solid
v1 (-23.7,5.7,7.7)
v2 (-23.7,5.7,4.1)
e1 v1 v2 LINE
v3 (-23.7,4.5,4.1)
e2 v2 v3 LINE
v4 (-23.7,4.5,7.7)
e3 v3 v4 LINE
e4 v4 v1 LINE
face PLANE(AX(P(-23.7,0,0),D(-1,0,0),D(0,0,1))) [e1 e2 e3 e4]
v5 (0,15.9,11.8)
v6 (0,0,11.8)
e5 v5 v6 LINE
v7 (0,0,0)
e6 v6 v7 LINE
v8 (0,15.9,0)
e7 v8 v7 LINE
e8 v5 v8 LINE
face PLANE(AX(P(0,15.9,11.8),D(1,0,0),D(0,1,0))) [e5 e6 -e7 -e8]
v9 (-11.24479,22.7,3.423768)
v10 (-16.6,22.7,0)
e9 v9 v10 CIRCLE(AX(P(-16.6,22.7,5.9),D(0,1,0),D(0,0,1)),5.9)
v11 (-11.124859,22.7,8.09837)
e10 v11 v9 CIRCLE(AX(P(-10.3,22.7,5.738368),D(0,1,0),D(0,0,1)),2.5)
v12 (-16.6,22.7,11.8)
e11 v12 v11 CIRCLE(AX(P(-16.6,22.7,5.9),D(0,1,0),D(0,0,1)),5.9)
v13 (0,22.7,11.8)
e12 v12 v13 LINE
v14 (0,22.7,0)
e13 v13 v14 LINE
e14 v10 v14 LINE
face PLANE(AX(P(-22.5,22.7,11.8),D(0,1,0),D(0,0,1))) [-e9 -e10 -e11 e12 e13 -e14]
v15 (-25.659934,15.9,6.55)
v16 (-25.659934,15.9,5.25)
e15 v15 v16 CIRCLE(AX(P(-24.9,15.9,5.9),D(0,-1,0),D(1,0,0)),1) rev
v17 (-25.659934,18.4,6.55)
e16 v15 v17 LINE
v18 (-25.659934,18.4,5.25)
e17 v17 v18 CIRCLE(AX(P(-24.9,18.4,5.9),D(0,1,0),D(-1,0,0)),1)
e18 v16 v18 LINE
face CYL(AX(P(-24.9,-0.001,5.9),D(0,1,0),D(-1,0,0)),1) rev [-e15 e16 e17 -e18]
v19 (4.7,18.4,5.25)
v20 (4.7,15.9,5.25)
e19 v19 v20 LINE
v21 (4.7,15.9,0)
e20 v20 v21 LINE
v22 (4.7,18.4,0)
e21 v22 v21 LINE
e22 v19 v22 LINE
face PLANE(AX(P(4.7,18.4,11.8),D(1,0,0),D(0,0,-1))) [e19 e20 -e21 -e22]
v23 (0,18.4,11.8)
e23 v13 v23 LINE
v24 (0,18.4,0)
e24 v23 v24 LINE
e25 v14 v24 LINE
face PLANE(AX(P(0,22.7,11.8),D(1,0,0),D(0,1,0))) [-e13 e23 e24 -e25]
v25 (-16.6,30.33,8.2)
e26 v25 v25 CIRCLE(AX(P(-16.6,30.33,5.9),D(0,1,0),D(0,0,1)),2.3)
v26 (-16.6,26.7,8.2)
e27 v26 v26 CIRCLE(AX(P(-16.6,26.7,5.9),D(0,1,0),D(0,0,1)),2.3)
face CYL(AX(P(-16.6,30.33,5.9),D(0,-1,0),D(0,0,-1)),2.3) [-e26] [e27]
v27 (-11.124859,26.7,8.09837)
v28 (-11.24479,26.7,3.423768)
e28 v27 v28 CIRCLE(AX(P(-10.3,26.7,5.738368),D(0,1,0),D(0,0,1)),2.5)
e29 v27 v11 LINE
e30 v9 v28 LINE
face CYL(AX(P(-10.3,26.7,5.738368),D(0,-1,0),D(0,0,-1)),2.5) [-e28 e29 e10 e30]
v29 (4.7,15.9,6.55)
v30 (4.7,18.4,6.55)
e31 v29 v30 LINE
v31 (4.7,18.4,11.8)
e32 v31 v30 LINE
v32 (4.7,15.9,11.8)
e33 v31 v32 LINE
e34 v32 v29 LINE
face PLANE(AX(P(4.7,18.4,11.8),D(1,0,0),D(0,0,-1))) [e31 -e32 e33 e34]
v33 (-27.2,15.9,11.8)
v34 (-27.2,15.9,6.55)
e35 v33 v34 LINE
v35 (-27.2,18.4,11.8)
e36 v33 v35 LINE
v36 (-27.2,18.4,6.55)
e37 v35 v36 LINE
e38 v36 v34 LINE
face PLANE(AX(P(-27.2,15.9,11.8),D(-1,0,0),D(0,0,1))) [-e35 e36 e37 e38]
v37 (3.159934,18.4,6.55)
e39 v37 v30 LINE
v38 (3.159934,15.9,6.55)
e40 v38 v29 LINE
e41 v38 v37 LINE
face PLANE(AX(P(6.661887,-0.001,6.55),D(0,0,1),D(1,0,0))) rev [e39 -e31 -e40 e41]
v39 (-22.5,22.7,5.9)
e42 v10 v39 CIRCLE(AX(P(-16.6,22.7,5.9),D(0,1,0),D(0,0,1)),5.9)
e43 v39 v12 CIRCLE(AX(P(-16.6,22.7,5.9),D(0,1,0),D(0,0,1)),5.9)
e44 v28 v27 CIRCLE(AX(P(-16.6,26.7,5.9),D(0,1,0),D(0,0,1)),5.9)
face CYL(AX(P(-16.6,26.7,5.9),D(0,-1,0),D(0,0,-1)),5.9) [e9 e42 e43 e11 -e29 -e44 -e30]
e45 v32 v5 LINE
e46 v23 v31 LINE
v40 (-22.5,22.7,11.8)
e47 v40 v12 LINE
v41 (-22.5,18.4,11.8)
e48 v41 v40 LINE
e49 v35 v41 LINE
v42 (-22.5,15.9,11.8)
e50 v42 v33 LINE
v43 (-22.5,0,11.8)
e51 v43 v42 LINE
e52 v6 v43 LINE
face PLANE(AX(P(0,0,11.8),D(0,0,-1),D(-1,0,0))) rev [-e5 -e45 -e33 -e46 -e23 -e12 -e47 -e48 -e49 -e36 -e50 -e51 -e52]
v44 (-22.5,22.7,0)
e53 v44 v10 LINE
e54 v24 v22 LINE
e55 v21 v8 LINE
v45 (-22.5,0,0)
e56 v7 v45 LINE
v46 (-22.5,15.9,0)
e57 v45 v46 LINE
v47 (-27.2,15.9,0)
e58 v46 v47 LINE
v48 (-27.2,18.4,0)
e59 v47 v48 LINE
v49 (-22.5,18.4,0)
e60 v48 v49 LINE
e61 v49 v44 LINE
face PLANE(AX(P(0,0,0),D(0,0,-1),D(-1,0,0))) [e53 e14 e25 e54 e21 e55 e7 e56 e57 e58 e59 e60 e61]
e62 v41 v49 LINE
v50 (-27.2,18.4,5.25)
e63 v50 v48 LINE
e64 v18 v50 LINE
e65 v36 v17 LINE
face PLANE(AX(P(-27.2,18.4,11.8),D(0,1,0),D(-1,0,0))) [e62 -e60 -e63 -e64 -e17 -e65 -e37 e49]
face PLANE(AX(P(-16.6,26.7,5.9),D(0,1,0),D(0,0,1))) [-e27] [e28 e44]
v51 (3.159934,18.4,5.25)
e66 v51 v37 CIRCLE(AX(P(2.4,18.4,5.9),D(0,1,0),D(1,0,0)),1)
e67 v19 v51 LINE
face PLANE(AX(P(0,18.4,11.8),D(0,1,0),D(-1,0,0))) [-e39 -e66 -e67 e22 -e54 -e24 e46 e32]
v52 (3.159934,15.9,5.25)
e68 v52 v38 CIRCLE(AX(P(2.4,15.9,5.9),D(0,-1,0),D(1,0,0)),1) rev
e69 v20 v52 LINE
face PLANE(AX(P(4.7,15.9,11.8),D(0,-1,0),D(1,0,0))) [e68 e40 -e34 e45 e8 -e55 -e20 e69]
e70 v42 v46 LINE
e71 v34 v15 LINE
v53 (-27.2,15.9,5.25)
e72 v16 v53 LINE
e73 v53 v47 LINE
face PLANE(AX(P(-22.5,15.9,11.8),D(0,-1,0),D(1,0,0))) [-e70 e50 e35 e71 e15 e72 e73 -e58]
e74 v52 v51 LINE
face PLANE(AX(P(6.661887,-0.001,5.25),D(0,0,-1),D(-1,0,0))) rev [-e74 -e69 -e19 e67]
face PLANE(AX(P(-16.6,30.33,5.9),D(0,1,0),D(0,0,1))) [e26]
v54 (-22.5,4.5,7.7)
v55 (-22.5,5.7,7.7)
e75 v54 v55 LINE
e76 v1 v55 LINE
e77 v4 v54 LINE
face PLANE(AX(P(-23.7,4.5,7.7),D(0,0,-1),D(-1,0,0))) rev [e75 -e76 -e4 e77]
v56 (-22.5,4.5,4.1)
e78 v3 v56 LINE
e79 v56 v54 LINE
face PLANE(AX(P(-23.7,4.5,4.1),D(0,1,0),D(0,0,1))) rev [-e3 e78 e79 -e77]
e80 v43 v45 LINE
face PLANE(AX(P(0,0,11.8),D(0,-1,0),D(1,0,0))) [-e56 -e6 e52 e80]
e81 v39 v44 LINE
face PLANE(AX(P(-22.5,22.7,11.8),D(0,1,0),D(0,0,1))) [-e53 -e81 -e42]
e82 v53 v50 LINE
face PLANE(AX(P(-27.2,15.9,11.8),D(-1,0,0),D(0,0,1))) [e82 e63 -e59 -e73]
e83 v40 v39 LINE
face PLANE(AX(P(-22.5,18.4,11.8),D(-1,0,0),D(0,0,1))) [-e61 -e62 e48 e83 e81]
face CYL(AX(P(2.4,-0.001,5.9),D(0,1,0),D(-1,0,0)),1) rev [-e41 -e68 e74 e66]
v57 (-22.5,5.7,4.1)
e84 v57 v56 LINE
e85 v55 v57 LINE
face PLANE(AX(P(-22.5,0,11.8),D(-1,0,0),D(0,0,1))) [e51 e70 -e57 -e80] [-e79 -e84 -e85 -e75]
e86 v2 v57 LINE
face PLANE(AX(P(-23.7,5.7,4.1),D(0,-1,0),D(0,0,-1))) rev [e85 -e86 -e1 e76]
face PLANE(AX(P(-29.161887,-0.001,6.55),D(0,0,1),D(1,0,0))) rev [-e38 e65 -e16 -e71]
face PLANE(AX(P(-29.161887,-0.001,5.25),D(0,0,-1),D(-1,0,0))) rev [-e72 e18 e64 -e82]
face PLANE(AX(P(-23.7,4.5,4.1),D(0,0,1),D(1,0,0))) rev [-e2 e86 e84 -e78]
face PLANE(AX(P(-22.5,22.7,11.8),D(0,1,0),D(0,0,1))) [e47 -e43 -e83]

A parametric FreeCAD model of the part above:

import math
import FreeCAD as App
import Part
import Sketcher

V = App.Vector

doc = App.newDocument("Part")
body = doc.addObject("PartDesign::Body", "Body")

sketch1 = doc.addObject("Sketcher::SketchObject", "Sketch")
body.addObject(sketch1)
sketch1.AttachmentSupport = (doc.XY_Plane, [""])
sketch1.MapMode = "FlatFace"
sketch1.addGeometry([
    Part.LineSegment(V(-22.5, 0, 0), V(0, 0, 0)),
    Part.LineSegment(V(0, 0, 0), V(0, 15.9, 0)),
    Part.LineSegment(V(0, 15.9, 0), V(4.7, 15.9, 0)),
    Part.LineSegment(V(4.7, 15.9, 0), V(4.7, 18.4, 0)),
    Part.LineSegment(V(4.7, 18.4, 0), V(0, 18.4, 0)),
    Part.LineSegment(V(0, 18.4, 0), V(0, 22.7, 0)),
    Part.LineSegment(V(0, 22.7, 0), V(-22.5, 22.7, 0)),
    Part.LineSegment(V(-22.5, 22.7, 0), V(-22.5, 18.4, 0)),
    Part.LineSegment(V(-22.5, 18.4, 0), V(-27.2, 18.4, 0)),
    Part.LineSegment(V(-27.2, 18.4, 0), V(-27.2, 15.9, 0)),
    Part.LineSegment(V(-27.2, 15.9, 0), V(-22.5, 15.9, 0)),
    Part.LineSegment(V(-22.5, 15.9, 0), V(-22.5, 0, 0)),
], False)
sketch1.addConstraint([
    Sketcher.Constraint("Coincident", 0, 2, 1, 1),
    Sketcher.Constraint("Coincident", 1, 2, 2, 1),
    Sketcher.Constraint("Coincident", 2, 2, 3, 1),
    Sketcher.Constraint("Coincident", 3, 2, 4, 1),
    Sketcher.Constraint("Coincident", 4, 2, 5, 1),
    Sketcher.Constraint("Coincident", 5, 2, 6, 1),
    Sketcher.Constraint("Coincident", 6, 2, 7, 1),
    Sketcher.Constraint("Coincident", 7, 2, 8, 1),
    Sketcher.Constraint("Coincident", 8, 2, 9, 1),
    Sketcher.Constraint("Coincident", 9, 2, 10, 1),
    Sketcher.Constraint("Coincident", 10, 2, 11, 1),
    Sketcher.Constraint("Coincident", 11, 2, 0, 1),
    Sketcher.Constraint("Horizontal", 0),
    Sketcher.Constraint("Vertical", 1),
    Sketcher.Constraint("Horizontal", 2),
    Sketcher.Constraint("Vertical", 3),
    Sketcher.Constraint("Horizontal", 4),
    Sketcher.Constraint("Vertical", 5),
    Sketcher.Constraint("Horizontal", 6),
    Sketcher.Constraint("Vertical", 7),
    Sketcher.Constraint("Horizontal", 8),
    Sketcher.Constraint("Vertical", 9),
    Sketcher.Constraint("Horizontal", 10),
    Sketcher.Constraint("Vertical", 11),
    Sketcher.Constraint("Coincident", 0, 2, -1, 1),
    Sketcher.Constraint("PointOnObject", 4, 2, -2),
    Sketcher.Constraint("Horizontal", 4, 2, 7, 2),
    Sketcher.Constraint("Horizontal", 2, 2, 9, 2),
    Sketcher.Constraint("Vertical", 7, 2, 10, 2),
    Sketcher.Constraint("Equal", 4, 8),
    Sketcher.Constraint("DistanceX", 0, 1, 0, 2, 22.5),
    Sketcher.Constraint("DistanceX", 2, 1, 2, 2, 4.7),
    Sketcher.Constraint("DistanceY", 1, 1, 1, 2, 15.9),
    Sketcher.Constraint("DistanceY", 3, 1, 3, 2, 2.5),
    Sketcher.Constraint("DistanceY", 5, 1, 5, 2, 4.3),
])
pad1 = doc.addObject("PartDesign::Pad", "Pad")
body.addObject(pad1)
pad1.Profile = sketch1
pad1.Length = 11.8

sketch2 = doc.addObject("Sketcher::SketchObject", "Sketch001")
body.addObject(sketch2)
sketch2.AttachmentSupport = (doc.XZ_Plane, [""])
sketch2.MapMode = "FlatFace"
sketch2.AttachmentOffset = App.Placement(V(0, 0, -22.7), App.Rotation())
sketch2.addGeometry(Part.Circle(V(-16.6, 5.9, 0), V(0, 0, 1), 5.9), False)
sketch2.addConstraint([
    Sketcher.Constraint("Diameter", 0, 11.8),
    Sketcher.Constraint("DistanceX", 0, 3, -1, 1, 16.6),
    Sketcher.Constraint("DistanceY", -1, 1, 0, 3, 5.9),
])
pad2 = doc.addObject("PartDesign::Pad", "Pad001")
body.addObject(pad2)
pad2.Profile = sketch2
pad2.Length = 4
pad2.Reversed = True

sketch3 = doc.addObject("Sketcher::SketchObject", "Sketch002")
body.addObject(sketch3)
sketch3.AttachmentSupport = (doc.XZ_Plane, [""])
sketch3.MapMode = "FlatFace"
sketch3.AttachmentOffset = App.Placement(V(0, 0, -22.7), App.Rotation())
sketch3.addGeometry(Part.Circle(V(-10.3, 5.738368, 0), V(0, 0, 1), 2.5), False)
sketch3.addConstraint([
    Sketcher.Constraint("Diameter", 0, 5.0),
    Sketcher.Constraint("DistanceX", 0, 3, -1, 1, 10.3),
    Sketcher.Constraint("DistanceY", -1, 1, 0, 3, 5.738368),
])
pad3 = doc.addObject("PartDesign::Pad", "Pad002")
body.addObject(pad3)
pad3.Profile = sketch3
pad3.Length = 4
pad3.Reversed = True

sketch4 = doc.addObject("Sketcher::SketchObject", "Sketch003")
body.addObject(sketch4)
sketch4.AttachmentSupport = (doc.XZ_Plane, [""])
sketch4.MapMode = "FlatFace"
sketch4.AttachmentOffset = App.Placement(V(0, 0, -26.7), App.Rotation())
sketch4.addGeometry(Part.Circle(V(-16.6, 5.9, 0), V(0, 0, 1), 2.3), False)
sketch4.addConstraint([
    Sketcher.Constraint("Diameter", 0, 4.6),
    Sketcher.Constraint("DistanceX", 0, 3, -1, 1, 16.6),
    Sketcher.Constraint("DistanceY", -1, 1, 0, 3, 5.9),
])
pad4 = doc.addObject("PartDesign::Pad", "Pad003")
body.addObject(pad4)
pad4.Profile = sketch4
pad4.Length = 3.63
pad4.Reversed = True

sketch5 = doc.addObject("Sketcher::SketchObject", "Sketch004")
body.addObject(sketch5)
sketch5.AttachmentSupport = (doc.XZ_Plane, [""])
sketch5.MapMode = "FlatFace"
sketch5.AttachmentOffset = App.Placement(V(0, 0, -18.4), App.Rotation())
sketch5.addGeometry([
    Part.LineSegment(V(6.661887, 5.25, 0), V(3.159934, 5.25, 0)),
    Part.ArcOfCircle(Part.Circle(V(2.4, 5.9, 0), V(0, 0, 1), 1), math.radians(40.541602), math.radians(319.458398)),
    Part.LineSegment(V(3.159934, 6.55, 0), V(6.661887, 6.55, 0)),
    Part.LineSegment(V(6.661887, 6.55, 0), V(6.661887, 5.25, 0)),
], False)
sketch5.addConstraint([
    Sketcher.Constraint("Coincident", 0, 2, 1, 2),
    Sketcher.Constraint("Coincident", 1, 1, 2, 1),
    Sketcher.Constraint("Coincident", 2, 2, 3, 1),
    Sketcher.Constraint("Coincident", 3, 2, 0, 1),
    Sketcher.Constraint("Horizontal", 0),
    Sketcher.Constraint("Horizontal", 2),
    Sketcher.Constraint("Vertical", 3),
    Sketcher.Constraint("Vertical", 0, 2, 1, 1),
    Sketcher.Constraint("Radius", 1, 1.0),
    Sketcher.Constraint("DistanceY", 3, 2, 3, 1, 1.3),
    Sketcher.Constraint("DistanceX", -1, 1, 1, 3, 2.4),
    Sketcher.Constraint("DistanceY", -1, 1, 1, 3, 5.9),
    Sketcher.Constraint("DistanceX", 0, 2, 0, 1, 3.501953),
])
pocket1 = doc.addObject("PartDesign::Pocket", "Pocket")
body.addObject(pocket1)
pocket1.Profile = sketch5
pocket1.Type = "UpToFirst"
pocket1.Reversed = True

sketch6 = doc.addObject("Sketcher::SketchObject", "Sketch005")
body.addObject(sketch6)
sketch6.AttachmentSupport = (doc.XZ_Plane, [""])
sketch6.MapMode = "FlatFace"
sketch6.AttachmentOffset = App.Placement(V(0, 0, -18.4), App.Rotation())
sketch6.addGeometry([
    Part.LineSegment(V(-25.659934, 5.25, 0), V(-29.161887, 5.25, 0)),
    Part.LineSegment(V(-29.161887, 5.25, 0), V(-29.161887, 6.55, 0)),
    Part.LineSegment(V(-29.161887, 6.55, 0), V(-25.659934, 6.55, 0)),
    Part.ArcOfCircle(Part.Circle(V(-24.9, 5.9, 0), V(0, 0, 1), 1), math.radians(-139.458398), math.radians(139.458398)),
], False)
sketch6.addConstraint([
    Sketcher.Constraint("Coincident", 0, 2, 1, 1),
    Sketcher.Constraint("Coincident", 1, 2, 2, 1),
    Sketcher.Constraint("Coincident", 2, 2, 3, 2),
    Sketcher.Constraint("Coincident", 3, 1, 0, 1),
    Sketcher.Constraint("Horizontal", 0),
    Sketcher.Constraint("Vertical", 1),
    Sketcher.Constraint("Horizontal", 2),
    Sketcher.Constraint("Vertical", 2, 2, 3, 1),
    Sketcher.Constraint("Radius", 3, 1.0),
    Sketcher.Constraint("DistanceY", 1, 1, 1, 2, 1.3),
    Sketcher.Constraint("DistanceX", 3, 3, -1, 1, 24.9),
    Sketcher.Constraint("DistanceY", -1, 1, 3, 3, 5.9),
    Sketcher.Constraint("DistanceX", 0, 2, 0, 1, 3.501953),
])
pocket2 = doc.addObject("PartDesign::Pocket", "Pocket001")
body.addObject(pocket2)
pocket2.Profile = sketch6
pocket2.Type = "UpToFirst"
pocket2.Reversed = True

sketch7 = doc.addObject("Sketcher::SketchObject", "Sketch006")
body.addObject(sketch7)
sketch7.AttachmentSupport = (doc.YZ_Plane, [""])
sketch7.MapMode = "FlatFace"
sketch7.AttachmentOffset = App.Placement(V(0, 0, -22.5), App.Rotation())
sketch7.addGeometry([
    Part.LineSegment(V(5.7, 4.1, 0), V(4.5, 4.1, 0)),
    Part.LineSegment(V(4.5, 4.1, 0), V(4.5, 7.7, 0)),
    Part.LineSegment(V(4.5, 7.7, 0), V(5.7, 7.7, 0)),
    Part.LineSegment(V(5.7, 7.7, 0), V(5.7, 4.1, 0)),
], False)
sketch7.addConstraint([
    Sketcher.Constraint("Coincident", 0, 2, 1, 1),
    Sketcher.Constraint("Coincident", 1, 2, 2, 1),
    Sketcher.Constraint("Coincident", 2, 2, 3, 1),
    Sketcher.Constraint("Coincident", 3, 2, 0, 1),
    Sketcher.Constraint("Horizontal", 0),
    Sketcher.Constraint("Vertical", 1),
    Sketcher.Constraint("Horizontal", 2),
    Sketcher.Constraint("Vertical", 3),
    Sketcher.Constraint("DistanceX", 0, 2, 0, 1, 1.2),
    Sketcher.Constraint("DistanceY", 1, 1, 1, 2, 3.6),
    Sketcher.Constraint("DistanceX", -1, 1, 0, 2, 4.5),
    Sketcher.Constraint("DistanceY", -1, 1, 0, 2, 4.1),
])
pad5 = doc.addObject("PartDesign::Pad", "Pad004")
body.addObject(pad5)
pad5.Profile = sketch7
pad5.Length = 1.2
pad5.Reversed = True

doc.recompute()
